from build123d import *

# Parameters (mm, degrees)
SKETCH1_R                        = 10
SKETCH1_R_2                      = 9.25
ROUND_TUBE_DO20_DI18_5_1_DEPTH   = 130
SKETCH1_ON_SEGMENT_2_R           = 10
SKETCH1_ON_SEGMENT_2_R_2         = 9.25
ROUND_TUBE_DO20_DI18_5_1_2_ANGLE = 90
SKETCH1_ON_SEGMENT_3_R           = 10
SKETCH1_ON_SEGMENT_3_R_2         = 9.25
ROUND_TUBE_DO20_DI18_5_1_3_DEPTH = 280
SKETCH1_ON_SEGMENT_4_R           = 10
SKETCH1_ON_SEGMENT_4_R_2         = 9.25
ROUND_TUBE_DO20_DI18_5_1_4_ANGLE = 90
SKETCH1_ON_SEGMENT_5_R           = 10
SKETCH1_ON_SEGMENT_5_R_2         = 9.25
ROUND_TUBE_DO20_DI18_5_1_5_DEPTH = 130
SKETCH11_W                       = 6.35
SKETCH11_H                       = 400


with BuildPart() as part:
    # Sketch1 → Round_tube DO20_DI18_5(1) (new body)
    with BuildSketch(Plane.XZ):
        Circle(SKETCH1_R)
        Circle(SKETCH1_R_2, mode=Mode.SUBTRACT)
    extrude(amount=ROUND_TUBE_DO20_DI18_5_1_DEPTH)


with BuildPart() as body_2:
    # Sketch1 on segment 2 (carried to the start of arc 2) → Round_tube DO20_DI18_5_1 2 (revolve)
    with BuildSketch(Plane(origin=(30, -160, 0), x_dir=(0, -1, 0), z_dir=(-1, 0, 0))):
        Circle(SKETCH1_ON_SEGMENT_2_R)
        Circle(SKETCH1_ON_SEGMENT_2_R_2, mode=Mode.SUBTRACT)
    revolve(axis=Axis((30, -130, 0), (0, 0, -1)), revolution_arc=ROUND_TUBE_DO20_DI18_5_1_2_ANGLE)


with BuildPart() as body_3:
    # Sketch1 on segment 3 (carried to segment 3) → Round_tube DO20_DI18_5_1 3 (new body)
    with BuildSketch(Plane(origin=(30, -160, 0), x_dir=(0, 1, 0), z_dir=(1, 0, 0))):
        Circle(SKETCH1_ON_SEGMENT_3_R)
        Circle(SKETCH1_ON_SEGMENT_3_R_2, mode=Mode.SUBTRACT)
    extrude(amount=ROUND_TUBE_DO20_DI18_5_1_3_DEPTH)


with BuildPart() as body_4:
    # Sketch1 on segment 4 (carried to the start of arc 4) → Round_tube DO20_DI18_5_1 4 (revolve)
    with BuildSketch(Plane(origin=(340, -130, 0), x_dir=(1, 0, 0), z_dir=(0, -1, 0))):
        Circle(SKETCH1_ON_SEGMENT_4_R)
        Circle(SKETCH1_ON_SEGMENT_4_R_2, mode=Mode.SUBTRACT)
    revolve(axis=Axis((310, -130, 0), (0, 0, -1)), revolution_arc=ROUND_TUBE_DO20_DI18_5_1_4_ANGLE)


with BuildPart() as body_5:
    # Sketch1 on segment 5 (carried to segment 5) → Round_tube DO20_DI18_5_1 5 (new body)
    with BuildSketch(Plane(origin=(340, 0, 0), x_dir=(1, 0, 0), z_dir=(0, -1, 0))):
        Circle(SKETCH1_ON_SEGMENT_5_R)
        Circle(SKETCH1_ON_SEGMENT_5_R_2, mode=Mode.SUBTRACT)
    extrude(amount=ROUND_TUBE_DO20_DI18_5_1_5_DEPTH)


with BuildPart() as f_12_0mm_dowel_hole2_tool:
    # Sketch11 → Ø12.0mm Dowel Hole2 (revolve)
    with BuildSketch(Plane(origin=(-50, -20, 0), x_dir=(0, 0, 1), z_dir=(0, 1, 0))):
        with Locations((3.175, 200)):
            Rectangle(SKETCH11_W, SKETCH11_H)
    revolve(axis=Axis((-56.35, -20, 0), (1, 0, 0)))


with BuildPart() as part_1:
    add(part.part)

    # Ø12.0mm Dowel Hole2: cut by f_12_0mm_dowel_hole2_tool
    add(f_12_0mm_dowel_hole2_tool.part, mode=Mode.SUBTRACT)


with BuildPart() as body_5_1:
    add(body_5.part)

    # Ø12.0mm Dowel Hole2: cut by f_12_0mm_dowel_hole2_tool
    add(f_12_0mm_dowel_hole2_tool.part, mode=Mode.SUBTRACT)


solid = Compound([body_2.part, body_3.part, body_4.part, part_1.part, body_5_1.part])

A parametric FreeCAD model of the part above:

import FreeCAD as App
import Part
import Sketcher
from FreeCAD import Vector

doc = App.newDocument("Part")
body = doc.addObject("PartDesign::Body", "Body")

# Sketch on XZ plane
sketch1 = body.newObject("Sketcher::SketchObject", "Sketch")
sketch1.AttachmentSupport = (doc.getObject("XZ_Plane"), [""])
sketch1.MapMode = "FlatFace"
sketch1.addGeometry([
    Part.Circle(Vector(0, 0, 0), Vector(0, 0, 1), 10),
    Part.Circle(Vector(0, 0, 0), Vector(0, 0, 1), 9.25),
], False)
sketch1.addConstraint([
    Sketcher.Constraint("Coincident", 0, 3, -1, 1),
    Sketcher.Constraint("Coincident", 1, 3, -1, 1),
    Sketcher.Constraint("Diameter", 0, 20.0),
    Sketcher.Constraint("Diameter", 1, 18.5),
])
pad1 = body.newObject("PartDesign::Pad", "Pad")
pad1.Profile = sketch1
pad1.Length = 130
body2 = doc.addObject("PartDesign::Body", "Body001")

# Sketch on YZ plane
sketch2 = body2.newObject("Sketcher::SketchObject", "Sketch001")
sketch2.AttachmentSupport = (doc.getObject("YZ_Plane001"), [""])
sketch2.MapMode = "FlatFace"
sketch2.AttachmentOffset = App.Placement(Vector(0, 0, 30), App.Rotation())
sketch2.addGeometry([
    Part.Circle(Vector(-160, 0, 0), Vector(0, 0, 1), 10),
    Part.Circle(Vector(-160, 0, 0), Vector(0, 0, 1), 9.25),
], False)
sketch2.addGeometry(Part.LineSegment(Vector(-130, 0, 0), Vector(-130, -10, 0)), True)  # axis
sketch2.addConstraint([
    Sketcher.Constraint("Vertical", 2),
    Sketcher.Constraint("Coincident", 1, 3, 0, 3),
    Sketcher.Constraint("PointOnObject", 0, 3, -1),
    Sketcher.Constraint("PointOnObject", 2, 1, -1),
    Sketcher.Constraint("Diameter", 0, 20.0),
    Sketcher.Constraint("Diameter", 1, 18.5),
    Sketcher.Constraint("DistanceY", 2, 2, 2, 1, 10.0),
    Sketcher.Constraint("DistanceX", 0, 3, -1, 1, 160.0),
    Sketcher.Constraint("DistanceX", 2, 1, -1, 1, 130.0),
])
revolution = body2.newObject("PartDesign::Revolution", "Revolution")
revolution.Profile = sketch2
revolution.ReferenceAxis = (sketch2, ["Axis0"])
revolution.Angle = 90
body3 = doc.addObject("PartDesign::Body", "Body002")

# Sketch on YZ plane
sketch3 = body3.newObject("Sketcher::SketchObject", "Sketch002")
sketch3.AttachmentSupport = (doc.getObject("YZ_Plane002"), [""])
sketch3.MapMode = "FlatFace"
sketch3.AttachmentOffset = App.Placement(Vector(0, 0, 30), App.Rotation())
sketch3.addGeometry([
    Part.Circle(Vector(-160, 0, 0), Vector(0, 0, 1), 10),
    Part.Circle(Vector(-160, 0, 0), Vector(0, 0, 1), 9.25),
], False)
sketch3.addConstraint([
    Sketcher.Constraint("Coincident", 1, 3, 0, 3),
    Sketcher.Constraint("PointOnObject", 0, 3, -1),
    Sketcher.Constraint("Diameter", 0, 20.0),
    Sketcher.Constraint("Diameter", 1, 18.5),
    Sketcher.Constraint("DistanceX", 0, 3, -1, 1, 160.0),
])
pad2 = body3.newObject("PartDesign::Pad", "Pad001")
pad2.Profile = sketch3
pad2.Length = 280
body4 = doc.addObject("PartDesign::Body", "Body003")

# Sketch on XZ plane
sketch4 = body4.newObject("Sketcher::SketchObject", "Sketch003")
sketch4.AttachmentSupport = (doc.getObject("XZ_Plane003"), [""])
sketch4.MapMode = "FlatFace"
sketch4.AttachmentOffset = App.Placement(Vector(0, 0, 130), App.Rotation())
sketch4.addGeometry([
    Part.Circle(Vector(340, 0, 0), Vector(0, 0, 1), 10),
    Part.Circle(Vector(340, 0, 0), Vector(0, 0, 1), 9.25),
], False)
sketch4.addGeometry(Part.LineSegment(Vector(310, 0, 0), Vector(310, -10, 0)), True)  # axis
sketch4.addConstraint([
    Sketcher.Constraint("Vertical", 2),
    Sketcher.Constraint("Coincident", 1, 3, 0, 3),
    Sketcher.Constraint("PointOnObject", 0, 3, -1),
    Sketcher.Constraint("PointOnObject", 2, 1, -1),
    Sketcher.Constraint("Diameter", 0, 20.0),
    Sketcher.Constraint("Diameter", 1, 18.5),
    Sketcher.Constraint("DistanceY", 2, 2, 2, 1, 10.0),
    Sketcher.Constraint("DistanceX", -1, 1, 0, 3, 340.0),
    Sketcher.Constraint("DistanceX", -1, 1, 2, 1, 310.0),
])
revolution2 = body4.newObject("PartDesign::Revolution", "Revolution001")
revolution2.Profile = sketch4
revolution2.ReferenceAxis = (sketch4, ["Axis0"])
revolution2.Angle = 90
body5 = doc.addObject("PartDesign::Body", "Body004")

# Sketch on XZ plane
sketch5 = body5.newObject("Sketcher::SketchObject", "Sketch004")
sketch5.AttachmentSupport = (doc.getObject("XZ_Plane004"), [""])
sketch5.MapMode = "FlatFace"
sketch5.addGeometry([
    Part.Circle(Vector(340, 0, 0), Vector(0, 0, 1), 10),
    Part.Circle(Vector(340, 0, 0), Vector(0, 0, 1), 9.25),
], False)
sketch5.addConstraint([
    Sketcher.Constraint("Coincident", 1, 3, 0, 3),
    Sketcher.Constraint("PointOnObject", 0, 3, -1),
    Sketcher.Constraint("Diameter", 0, 20.0),
    Sketcher.Constraint("Diameter", 1, 18.5),
    Sketcher.Constraint("DistanceX", -1, 1, 0, 3, 340.0),
])
pad3 = body5.newObject("PartDesign::Pad", "Pad002")
pad3.Profile = sketch5
pad3.Length = 130
body6 = doc.addObject("PartDesign::Body", "Body005")

# Sketch on XZ plane
sketch6 = body6.newObject("Sketcher::SketchObject", "Sketch005")
sketch6.AttachmentSupport = (doc.getObject("XZ_Plane005"), [""])
sketch6.MapMode = "FlatFace"
sketch6.AttachmentOffset = App.Placement(Vector(0, 0, 20), App.Rotation())
sketch6.addGeometry([
    Part.LineSegment(Vector(350, 0, 0), Vector(-50, 0, 0)),
    Part.LineSegment(Vector(-50, 0, 0), Vector(-50, 6.35, 0)),
    Part.LineSegment(Vector(-50, 6.35, 0), Vector(350, 6.35, 0)),
    Part.LineSegment(Vector(350, 6.35, 0), Vector(350, 0, 0)),
], False)
sketch6.addConstraint([
    Sketcher.Constraint("Coincident", 0, 2, 1, 1),
    Sketcher.Constraint("Coincident", 1, 2, 2, 1),
    Sketcher.Constraint("Coincident", 2, 2, 3, 1),
    Sketcher.Constraint("Coincident", 3, 2, 0, 1),
    Sketcher.Constraint("Horizontal", 0),
    Sketcher.Constraint("Vertical", 1),
    Sketcher.Constraint("Horizontal", 2),
    Sketcher.Constraint("Vertical", 3),
    Sketcher.Constraint("PointOnObject", 0, 2, -1),
    Sketcher.Constraint("DistanceX", 0, 2, 0, 1, 400.0),
    Sketcher.Constraint("DistanceX", 0, 2, -1, 1, 50.0),
    Sketcher.Constraint("DistanceY", 1, 1, 1, 2, 6.35),
])
revolution3 = body6.newObject("PartDesign::Revolution", "Revolution002")
revolution3.Profile = sketch6
revolution3.ReferenceAxis = (sketch6, ["H_Axis"])
revolution3.Angle = 360
doc.recompute()

body7 = doc.addObject("PartDesign::Body", "Body006")
body7.BaseFeature = body6
boolean = body.newObject("PartDesign::Boolean", "Boolean")
boolean.Type = "Cut"
boolean.addObjects([body7])
doc.recompute()

boolean2 = body5.newObject("PartDesign::Boolean", "Boolean001")
boolean2.Type = "Cut"
boolean2.addObjects([body6])

doc.recompute()
